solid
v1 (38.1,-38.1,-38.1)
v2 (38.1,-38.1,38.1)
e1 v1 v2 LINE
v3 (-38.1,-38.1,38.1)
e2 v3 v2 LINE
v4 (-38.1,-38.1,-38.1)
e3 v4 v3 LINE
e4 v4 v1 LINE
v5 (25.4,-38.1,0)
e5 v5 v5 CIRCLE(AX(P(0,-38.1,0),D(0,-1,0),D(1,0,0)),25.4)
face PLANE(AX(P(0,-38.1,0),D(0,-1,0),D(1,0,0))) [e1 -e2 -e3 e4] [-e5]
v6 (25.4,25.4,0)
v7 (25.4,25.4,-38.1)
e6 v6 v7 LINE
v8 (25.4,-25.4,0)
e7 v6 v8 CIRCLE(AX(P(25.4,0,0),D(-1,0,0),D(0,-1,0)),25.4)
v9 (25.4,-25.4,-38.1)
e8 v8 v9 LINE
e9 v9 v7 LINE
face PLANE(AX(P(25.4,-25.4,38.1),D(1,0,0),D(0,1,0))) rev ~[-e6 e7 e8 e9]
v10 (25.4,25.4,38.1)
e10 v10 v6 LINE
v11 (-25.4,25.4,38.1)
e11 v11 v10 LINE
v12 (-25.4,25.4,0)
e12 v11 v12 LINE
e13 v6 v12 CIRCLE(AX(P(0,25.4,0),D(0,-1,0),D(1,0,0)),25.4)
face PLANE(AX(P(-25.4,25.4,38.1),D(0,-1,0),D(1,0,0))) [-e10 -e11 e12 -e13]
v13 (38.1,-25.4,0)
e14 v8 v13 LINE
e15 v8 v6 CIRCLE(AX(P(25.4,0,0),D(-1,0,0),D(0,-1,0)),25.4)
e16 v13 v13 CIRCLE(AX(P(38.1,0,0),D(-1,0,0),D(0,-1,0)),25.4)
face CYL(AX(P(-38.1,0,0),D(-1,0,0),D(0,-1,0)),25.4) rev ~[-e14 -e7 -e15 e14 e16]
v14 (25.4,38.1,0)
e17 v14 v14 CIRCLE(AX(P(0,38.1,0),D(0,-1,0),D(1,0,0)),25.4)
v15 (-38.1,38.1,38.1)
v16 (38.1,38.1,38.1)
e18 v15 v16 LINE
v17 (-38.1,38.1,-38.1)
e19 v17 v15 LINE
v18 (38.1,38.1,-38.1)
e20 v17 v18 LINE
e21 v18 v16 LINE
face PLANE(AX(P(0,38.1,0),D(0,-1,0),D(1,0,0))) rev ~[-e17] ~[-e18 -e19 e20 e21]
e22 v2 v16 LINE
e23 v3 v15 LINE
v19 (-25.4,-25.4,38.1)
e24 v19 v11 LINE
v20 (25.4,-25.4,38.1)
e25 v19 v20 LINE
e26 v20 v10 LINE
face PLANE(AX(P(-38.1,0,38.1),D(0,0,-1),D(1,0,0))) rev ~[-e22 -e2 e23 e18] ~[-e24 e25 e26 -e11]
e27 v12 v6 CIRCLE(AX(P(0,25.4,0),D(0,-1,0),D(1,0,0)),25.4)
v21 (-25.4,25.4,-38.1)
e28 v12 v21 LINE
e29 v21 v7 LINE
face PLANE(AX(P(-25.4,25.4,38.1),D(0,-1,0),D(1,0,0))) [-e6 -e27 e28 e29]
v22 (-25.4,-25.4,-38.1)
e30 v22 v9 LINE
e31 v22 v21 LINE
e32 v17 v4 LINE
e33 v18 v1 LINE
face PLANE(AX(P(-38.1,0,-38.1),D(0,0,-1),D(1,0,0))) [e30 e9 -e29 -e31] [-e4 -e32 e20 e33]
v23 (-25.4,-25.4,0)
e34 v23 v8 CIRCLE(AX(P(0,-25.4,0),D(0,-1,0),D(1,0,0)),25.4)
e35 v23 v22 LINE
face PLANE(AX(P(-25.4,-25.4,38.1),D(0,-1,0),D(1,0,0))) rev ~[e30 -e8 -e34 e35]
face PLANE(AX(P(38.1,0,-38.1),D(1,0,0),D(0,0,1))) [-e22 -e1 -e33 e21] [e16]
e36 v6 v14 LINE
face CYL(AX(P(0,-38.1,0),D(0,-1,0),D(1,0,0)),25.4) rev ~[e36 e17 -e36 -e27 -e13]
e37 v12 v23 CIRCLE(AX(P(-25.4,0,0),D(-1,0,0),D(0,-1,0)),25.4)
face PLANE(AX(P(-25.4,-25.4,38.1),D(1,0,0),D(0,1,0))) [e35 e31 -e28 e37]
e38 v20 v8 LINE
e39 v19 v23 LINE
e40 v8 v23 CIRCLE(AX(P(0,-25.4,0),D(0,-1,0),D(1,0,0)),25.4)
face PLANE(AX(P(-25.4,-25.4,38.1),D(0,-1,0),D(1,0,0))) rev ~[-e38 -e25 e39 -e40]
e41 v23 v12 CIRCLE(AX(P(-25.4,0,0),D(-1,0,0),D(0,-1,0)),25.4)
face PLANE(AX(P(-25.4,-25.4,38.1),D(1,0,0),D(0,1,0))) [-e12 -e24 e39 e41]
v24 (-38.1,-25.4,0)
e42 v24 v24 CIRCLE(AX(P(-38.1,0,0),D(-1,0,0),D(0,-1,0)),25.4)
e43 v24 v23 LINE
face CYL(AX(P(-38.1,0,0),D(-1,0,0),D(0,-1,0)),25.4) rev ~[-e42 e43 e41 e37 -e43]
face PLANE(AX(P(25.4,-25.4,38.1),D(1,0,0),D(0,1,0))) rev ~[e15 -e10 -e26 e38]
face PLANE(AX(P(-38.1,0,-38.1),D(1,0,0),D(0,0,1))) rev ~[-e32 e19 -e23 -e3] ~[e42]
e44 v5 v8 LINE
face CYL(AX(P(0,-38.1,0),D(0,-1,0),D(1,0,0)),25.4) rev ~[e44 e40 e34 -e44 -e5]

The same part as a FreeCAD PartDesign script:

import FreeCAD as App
import Part
import Sketcher

V = App.Vector
Q = App.Units.Quantity

doc = App.newDocument("Part")
body = doc.addObject("PartDesign::Body", "Body")

# Sketch on XZ plane
sketch1 = body.newObject("Sketcher::SketchObject", "Sketch")
sketch1.AttachmentSupport = (doc.getObject("XZ_Plane"), [""])
sketch1.MapMode = "FlatFace"
sketch1.addGeometry(Part.LineSegment(V(-38.1, 38.1, 0), V(-38.1, -38.1, 0)), False)
sketch1.addGeometry(Part.LineSegment(V(-38.1, -38.1, 0), V(38.1, -38.1, 0)), False)
sketch1.addGeometry(Part.LineSegment(V(38.1, -38.1, 0), V(38.1, 38.1, 0)), False)
sketch1.addGeometry(Part.LineSegment(V(38.1, 38.1, 0), V(-38.1, 38.1, 0)), False)
sketch1.addConstraint(Sketcher.Constraint("Coincident", 0, 2, 1, 1))
sketch1.addConstraint(Sketcher.Constraint("Coincident", 1, 2, 2, 1))
sketch1.addConstraint(Sketcher.Constraint("Coincident", 2, 2, 3, 1))
sketch1.addConstraint(Sketcher.Constraint("Coincident", 3, 2, 0, 1))
sketch1.addConstraint(Sketcher.Constraint("Vertical", 0))
sketch1.addConstraint(Sketcher.Constraint("Horizontal", 1))
sketch1.addConstraint(Sketcher.Constraint("Vertical", 2))
sketch1.addConstraint(Sketcher.Constraint("Horizontal", 3))
sketch1.addConstraint(Sketcher.Constraint("Symmetric", 0, 2, 2, 2, -1, 1))
sketch1.addConstraint(Sketcher.Constraint("Equal", 3, 0))
sketch1.addConstraint(Sketcher.Constraint("DistanceX", 1, 1, 1, 2, Q("3 in")))
pad1 = body.newObject("PartDesign::Pad", "Pad")
pad1.Profile = sketch1
pad1.Length = Q("3 in")
pad1.Midplane = True

# Sketch on YZ plane
sketch2 = body.newObject("Sketcher::SketchObject", "Sketch001")
sketch2.AttachmentSupport = (doc.getObject("YZ_Plane"), [""])
sketch2.MapMode = "FlatFace"
sketch2.AttachmentOffset = App.Placement(V(0, 0, -1.5 * 25.4), App.Rotation())
sketch2.addGeometry(Part.Circle(V(0, 0, 0), V(0, 0, 1), 25.4), False)
sketch2.addConstraint(Sketcher.Constraint("Coincident", 0, 3, -1, 1))
sketch2.addConstraint(Sketcher.Constraint("Diameter", 0, Q("2 in")))
pocket1 = body.newObject("PartDesign::Pocket", "Pocket")
pocket1.Profile = sketch2
pocket1.Type = "ThroughAll"
pocket1.Reversed = True

# Sketch on XZ plane
sketch3 = body.newObject("Sketcher::SketchObject", "Sketch002")
sketch3.AttachmentSupport = (doc.getObject("XZ_Plane"), [""])
sketch3.MapMode = "FlatFace"
sketch3.AttachmentOffset = App.Placement(V(0, 0, 1.5 * 25.4), App.Rotation())
sketch3.addGeometry(Part.Circle(V(0, 0, 0), V(0, 0, 1), 25.4), False)
sketch3.addConstraint(Sketcher.Constraint("Coincident", 0, 3, -1, 1))
sketch3.addConstraint(Sketcher.Constraint("Diameter", 0, Q("2 in")))
pocket2 = body.newObject("PartDesign::Pocket", "Pocket001")
pocket2.Profile = sketch3
pocket2.Length = Q("3 in")

# Sketch on XY plane
sketch4 = body.newObject("Sketcher::SketchObject", "Sketch003")
sketch4.AttachmentSupport = (doc.getObject("XY_Plane"), [""])
sketch4.MapMode = "FlatFace"
sketch4.AttachmentOffset = App.Placement(V(0, 0, 1.5 * 25.4), App.Rotation())
sketch4.addGeometry(Part.LineSegment(V(-25.4, 25.4, 0), V(-25.4, -25.4, 0)), False)
sketch4.addGeometry(Part.LineSegment(V(-25.4, -25.4, 0), V(25.4, -25.4, 0)), False)
sketch4.addGeometry(Part.LineSegment(V(25.4, -25.4, 0), V(25.4, 25.4, 0)), False)
sketch4.addGeometry(Part.LineSegment(V(25.4, 25.4, 0), V(-25.4, 25.4, 0)), False)
sketch4.addConstraint(Sketcher.Constraint("Coincident", 0, 2, 1, 1))
sketch4.addConstraint(Sketcher.Constraint("Coincident", 1, 2, 2, 1))
sketch4.addConstraint(Sketcher.Constraint("Coincident", 2, 2, 3, 1))
sketch4.addConstraint(Sketcher.Constraint("Coincident", 3, 2, 0, 1))
sketch4.addConstraint(Sketcher.Constraint("Vertical", 0))
sketch4.addConstraint(Sketcher.Constraint("Horizontal", 1))
sketch4.addConstraint(Sketcher.Constraint("Vertical", 2))
sketch4.addConstraint(Sketcher.Constraint("Horizontal", 3))
sketch4.addConstraint(Sketcher.Constraint("Symmetric", 0, 2, 2, 2, -1, 1))
sketch4.addConstraint(Sketcher.Constraint("Equal", 3, 0))
sketch4.addConstraint(Sketcher.Constraint("DistanceX", 1, 1, 1, 2, Q("2 in")))
pocket3 = body.newObject("PartDesign::Pocket", "Pocket002")
pocket3.Profile = sketch4
pocket3.Length = Q("3 in")

doc.recompute()
